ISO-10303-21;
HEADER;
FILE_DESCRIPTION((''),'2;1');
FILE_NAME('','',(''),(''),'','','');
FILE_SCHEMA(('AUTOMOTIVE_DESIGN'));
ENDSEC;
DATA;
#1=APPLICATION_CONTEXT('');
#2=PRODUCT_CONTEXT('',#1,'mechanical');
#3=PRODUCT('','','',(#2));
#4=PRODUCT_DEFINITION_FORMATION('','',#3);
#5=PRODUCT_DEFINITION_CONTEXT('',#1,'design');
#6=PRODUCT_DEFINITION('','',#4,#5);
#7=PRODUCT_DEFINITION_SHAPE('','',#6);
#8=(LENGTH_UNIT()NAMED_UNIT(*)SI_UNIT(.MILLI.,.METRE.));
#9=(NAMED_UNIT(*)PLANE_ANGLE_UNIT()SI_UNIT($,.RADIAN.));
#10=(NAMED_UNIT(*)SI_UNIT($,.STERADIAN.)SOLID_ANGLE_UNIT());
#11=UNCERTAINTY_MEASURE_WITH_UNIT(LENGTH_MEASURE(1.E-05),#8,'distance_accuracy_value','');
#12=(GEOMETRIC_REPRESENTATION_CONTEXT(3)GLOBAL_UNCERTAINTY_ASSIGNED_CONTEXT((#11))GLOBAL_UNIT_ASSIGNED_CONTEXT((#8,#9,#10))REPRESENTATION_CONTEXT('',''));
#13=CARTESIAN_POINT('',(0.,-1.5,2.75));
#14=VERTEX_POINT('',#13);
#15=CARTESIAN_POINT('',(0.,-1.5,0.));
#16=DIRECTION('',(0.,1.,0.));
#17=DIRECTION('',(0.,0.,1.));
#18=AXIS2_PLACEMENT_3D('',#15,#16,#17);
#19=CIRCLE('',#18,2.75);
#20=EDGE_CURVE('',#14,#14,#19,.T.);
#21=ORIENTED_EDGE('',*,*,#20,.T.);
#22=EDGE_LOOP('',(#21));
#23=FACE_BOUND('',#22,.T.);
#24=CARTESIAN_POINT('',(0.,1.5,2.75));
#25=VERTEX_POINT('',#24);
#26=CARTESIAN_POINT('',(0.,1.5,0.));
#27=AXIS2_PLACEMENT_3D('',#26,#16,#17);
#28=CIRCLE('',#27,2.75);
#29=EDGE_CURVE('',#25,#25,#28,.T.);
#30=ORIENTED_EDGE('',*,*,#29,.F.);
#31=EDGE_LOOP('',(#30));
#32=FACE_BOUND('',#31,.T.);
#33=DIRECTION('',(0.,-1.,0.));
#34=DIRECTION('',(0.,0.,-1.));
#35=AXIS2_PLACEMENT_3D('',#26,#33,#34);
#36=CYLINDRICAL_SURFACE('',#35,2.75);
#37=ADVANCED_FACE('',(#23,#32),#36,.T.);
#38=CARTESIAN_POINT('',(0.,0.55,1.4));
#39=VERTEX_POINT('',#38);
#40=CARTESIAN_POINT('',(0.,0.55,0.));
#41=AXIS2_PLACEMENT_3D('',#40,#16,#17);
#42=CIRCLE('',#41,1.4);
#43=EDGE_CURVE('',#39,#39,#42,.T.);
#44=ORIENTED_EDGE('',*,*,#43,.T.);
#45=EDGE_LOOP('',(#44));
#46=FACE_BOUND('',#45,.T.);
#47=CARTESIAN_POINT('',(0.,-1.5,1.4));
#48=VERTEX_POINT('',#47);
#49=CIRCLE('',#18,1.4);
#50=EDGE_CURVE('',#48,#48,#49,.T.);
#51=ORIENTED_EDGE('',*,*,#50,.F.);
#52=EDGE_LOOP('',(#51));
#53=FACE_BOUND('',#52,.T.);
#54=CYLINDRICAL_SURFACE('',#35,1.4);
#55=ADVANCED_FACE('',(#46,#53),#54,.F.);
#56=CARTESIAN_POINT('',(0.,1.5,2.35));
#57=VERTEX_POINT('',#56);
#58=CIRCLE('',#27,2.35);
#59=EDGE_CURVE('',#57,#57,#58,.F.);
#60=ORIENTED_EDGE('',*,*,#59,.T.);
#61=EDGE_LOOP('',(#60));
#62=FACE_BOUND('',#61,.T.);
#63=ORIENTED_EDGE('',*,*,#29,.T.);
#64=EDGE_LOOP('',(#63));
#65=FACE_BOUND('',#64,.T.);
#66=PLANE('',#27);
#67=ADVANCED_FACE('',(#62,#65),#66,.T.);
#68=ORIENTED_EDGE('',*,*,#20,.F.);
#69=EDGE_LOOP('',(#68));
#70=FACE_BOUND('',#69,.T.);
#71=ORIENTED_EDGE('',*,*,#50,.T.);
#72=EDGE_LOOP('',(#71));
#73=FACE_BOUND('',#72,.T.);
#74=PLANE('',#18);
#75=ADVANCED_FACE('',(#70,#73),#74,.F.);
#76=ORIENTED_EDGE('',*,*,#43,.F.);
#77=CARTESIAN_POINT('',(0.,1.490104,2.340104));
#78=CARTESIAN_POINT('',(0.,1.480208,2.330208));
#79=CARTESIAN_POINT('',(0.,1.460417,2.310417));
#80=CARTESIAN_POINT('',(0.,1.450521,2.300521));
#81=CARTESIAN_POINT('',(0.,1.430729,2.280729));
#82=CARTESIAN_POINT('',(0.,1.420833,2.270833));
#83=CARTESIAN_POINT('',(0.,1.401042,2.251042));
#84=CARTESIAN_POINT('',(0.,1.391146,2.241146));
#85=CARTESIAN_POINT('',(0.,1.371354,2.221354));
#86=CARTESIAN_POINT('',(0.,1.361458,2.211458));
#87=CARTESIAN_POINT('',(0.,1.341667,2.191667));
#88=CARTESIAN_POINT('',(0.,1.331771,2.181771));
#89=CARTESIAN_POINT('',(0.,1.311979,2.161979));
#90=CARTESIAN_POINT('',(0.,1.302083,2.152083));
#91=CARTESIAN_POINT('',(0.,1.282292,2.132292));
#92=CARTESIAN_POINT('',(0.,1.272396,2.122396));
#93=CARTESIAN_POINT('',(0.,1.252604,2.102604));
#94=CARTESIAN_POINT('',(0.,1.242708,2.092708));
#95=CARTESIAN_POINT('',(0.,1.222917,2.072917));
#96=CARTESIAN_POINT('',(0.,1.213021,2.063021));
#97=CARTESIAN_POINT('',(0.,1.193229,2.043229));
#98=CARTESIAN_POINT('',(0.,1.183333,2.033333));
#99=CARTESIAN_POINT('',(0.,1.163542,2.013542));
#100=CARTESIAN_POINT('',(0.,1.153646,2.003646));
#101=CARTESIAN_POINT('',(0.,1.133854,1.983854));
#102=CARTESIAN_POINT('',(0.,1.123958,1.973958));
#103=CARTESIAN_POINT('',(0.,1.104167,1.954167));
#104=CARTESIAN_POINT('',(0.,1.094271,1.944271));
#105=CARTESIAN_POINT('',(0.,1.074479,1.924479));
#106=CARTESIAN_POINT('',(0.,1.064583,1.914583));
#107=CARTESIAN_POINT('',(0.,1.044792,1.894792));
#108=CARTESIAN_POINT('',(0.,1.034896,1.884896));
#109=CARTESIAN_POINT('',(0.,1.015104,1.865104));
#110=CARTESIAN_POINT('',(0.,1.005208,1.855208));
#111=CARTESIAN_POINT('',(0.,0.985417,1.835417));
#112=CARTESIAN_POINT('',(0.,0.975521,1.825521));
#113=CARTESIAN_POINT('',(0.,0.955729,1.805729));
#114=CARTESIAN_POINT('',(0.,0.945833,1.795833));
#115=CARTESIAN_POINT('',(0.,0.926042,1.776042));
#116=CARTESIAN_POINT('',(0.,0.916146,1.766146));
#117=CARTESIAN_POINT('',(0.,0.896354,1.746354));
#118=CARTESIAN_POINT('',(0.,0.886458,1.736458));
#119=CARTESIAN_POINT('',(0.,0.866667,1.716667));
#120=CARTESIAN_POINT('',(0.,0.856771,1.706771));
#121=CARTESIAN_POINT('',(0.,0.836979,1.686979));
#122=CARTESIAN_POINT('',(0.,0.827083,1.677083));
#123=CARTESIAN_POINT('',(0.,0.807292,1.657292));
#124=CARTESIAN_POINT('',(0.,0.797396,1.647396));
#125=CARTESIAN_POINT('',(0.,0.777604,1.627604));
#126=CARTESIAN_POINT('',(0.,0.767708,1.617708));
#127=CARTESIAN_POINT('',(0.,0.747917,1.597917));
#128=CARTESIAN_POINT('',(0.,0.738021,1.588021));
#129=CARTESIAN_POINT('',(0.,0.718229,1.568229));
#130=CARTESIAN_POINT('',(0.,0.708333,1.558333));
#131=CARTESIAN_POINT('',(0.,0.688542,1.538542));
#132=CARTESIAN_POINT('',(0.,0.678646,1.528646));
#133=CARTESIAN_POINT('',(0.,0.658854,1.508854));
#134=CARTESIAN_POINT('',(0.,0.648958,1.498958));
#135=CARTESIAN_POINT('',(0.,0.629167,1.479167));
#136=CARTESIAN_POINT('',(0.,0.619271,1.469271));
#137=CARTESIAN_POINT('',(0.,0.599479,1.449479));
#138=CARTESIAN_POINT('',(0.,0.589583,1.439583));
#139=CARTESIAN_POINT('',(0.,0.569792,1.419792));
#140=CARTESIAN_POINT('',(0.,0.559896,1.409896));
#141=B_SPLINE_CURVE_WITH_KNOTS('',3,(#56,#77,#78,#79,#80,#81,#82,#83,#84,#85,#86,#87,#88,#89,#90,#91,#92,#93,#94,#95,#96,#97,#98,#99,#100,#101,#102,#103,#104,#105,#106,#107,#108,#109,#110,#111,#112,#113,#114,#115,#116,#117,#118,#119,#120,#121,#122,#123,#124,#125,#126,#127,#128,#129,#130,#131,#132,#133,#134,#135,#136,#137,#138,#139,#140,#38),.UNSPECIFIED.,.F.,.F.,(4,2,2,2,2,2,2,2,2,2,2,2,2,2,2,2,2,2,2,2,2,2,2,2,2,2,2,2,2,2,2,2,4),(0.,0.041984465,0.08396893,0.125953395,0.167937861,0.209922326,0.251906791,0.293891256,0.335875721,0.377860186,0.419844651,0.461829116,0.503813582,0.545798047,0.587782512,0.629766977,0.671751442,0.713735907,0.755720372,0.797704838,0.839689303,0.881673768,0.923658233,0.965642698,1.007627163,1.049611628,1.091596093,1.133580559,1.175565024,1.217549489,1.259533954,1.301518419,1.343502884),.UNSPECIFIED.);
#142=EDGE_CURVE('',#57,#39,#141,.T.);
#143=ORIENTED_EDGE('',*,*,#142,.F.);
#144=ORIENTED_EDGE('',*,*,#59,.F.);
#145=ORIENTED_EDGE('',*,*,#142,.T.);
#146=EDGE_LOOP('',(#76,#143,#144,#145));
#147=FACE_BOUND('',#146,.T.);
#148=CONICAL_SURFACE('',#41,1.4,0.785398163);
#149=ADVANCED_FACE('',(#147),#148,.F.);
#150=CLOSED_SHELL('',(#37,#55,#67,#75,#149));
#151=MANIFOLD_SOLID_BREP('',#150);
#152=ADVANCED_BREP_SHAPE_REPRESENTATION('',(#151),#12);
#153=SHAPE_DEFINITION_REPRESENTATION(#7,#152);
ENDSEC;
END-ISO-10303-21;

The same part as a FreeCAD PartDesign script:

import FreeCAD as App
import Part
import Sketcher
from FreeCAD import Vector


def edges_at(feature, points):
    """Names of the edges that pass closest to the given points."""
    edges = feature.Shape.Edges
    near = lambda p: min(range(len(edges)), key=lambda i: edges[i].distToShape(Part.Vertex(*p))[0])
    return sorted({f"Edge{near(p) + 1}" for p in points})

doc = App.newDocument("Part")
params = doc.addObject("Spreadsheet::Sheet", "Params")
for row, (alias, value) in enumerate([
    ("sketch1_diameter", "5.5 mm"),
    ("sketch1_diameter2", "2.8 mm"),
    ("pad1_length", "3 mm"),
    ("chamfer_size", "0.95 mm"),
], start=1):
    params.set(f"A{row}", alias)
    params.set(f"B{row}", "=" + value)
    params.setAlias(f"B{row}", alias)

body = doc.addObject("PartDesign::Body", "Body")

# Sketch on XZ plane
sketch1 = body.newObject("Sketcher::SketchObject", "Sketch")
sketch1.AttachmentSupport = (doc.getObject("XZ_Plane"), [""])
sketch1.MapMode = "FlatFace"
sketch1.addGeometry(Part.Circle(Vector(0, 0, 0), Vector(0, 0, 1), 2.8), False)
sketch1.addGeometry(Part.Circle(Vector(0, 0, 0), Vector(0, 0, 1), 1.4), False)
sketch1.addConstraint(Sketcher.Constraint("Coincident", 0, 3, -1, 1))
sketch1.addConstraint(Sketcher.Constraint("Coincident", 1, 3, -1, 1))
sketch1.addConstraint(Sketcher.Constraint("Diameter", 0, 5.5))
sketch1.addConstraint(Sketcher.Constraint("Diameter", 1, 2.8))
sketch1.setExpression("Constraints[2]", "Params.sketch1_diameter")
sketch1.setExpression("Constraints[3]", "Params.sketch1_diameter2")
pad1 = body.newObject("PartDesign::Pad", "Pad")
pad1.Profile = sketch1
pad1.setExpression("Length", "Params.pad1_length")
pad1.Midplane = True
doc.recompute()

chamfer = body.newObject("PartDesign::Chamfer", "Chamfer")
chamfer.Base = (pad1, edges_at(pad1, [(0, 1.5, -1.4)]))
chamfer.setExpression("Size", "Params.chamfer_size")

doc.recompute()
